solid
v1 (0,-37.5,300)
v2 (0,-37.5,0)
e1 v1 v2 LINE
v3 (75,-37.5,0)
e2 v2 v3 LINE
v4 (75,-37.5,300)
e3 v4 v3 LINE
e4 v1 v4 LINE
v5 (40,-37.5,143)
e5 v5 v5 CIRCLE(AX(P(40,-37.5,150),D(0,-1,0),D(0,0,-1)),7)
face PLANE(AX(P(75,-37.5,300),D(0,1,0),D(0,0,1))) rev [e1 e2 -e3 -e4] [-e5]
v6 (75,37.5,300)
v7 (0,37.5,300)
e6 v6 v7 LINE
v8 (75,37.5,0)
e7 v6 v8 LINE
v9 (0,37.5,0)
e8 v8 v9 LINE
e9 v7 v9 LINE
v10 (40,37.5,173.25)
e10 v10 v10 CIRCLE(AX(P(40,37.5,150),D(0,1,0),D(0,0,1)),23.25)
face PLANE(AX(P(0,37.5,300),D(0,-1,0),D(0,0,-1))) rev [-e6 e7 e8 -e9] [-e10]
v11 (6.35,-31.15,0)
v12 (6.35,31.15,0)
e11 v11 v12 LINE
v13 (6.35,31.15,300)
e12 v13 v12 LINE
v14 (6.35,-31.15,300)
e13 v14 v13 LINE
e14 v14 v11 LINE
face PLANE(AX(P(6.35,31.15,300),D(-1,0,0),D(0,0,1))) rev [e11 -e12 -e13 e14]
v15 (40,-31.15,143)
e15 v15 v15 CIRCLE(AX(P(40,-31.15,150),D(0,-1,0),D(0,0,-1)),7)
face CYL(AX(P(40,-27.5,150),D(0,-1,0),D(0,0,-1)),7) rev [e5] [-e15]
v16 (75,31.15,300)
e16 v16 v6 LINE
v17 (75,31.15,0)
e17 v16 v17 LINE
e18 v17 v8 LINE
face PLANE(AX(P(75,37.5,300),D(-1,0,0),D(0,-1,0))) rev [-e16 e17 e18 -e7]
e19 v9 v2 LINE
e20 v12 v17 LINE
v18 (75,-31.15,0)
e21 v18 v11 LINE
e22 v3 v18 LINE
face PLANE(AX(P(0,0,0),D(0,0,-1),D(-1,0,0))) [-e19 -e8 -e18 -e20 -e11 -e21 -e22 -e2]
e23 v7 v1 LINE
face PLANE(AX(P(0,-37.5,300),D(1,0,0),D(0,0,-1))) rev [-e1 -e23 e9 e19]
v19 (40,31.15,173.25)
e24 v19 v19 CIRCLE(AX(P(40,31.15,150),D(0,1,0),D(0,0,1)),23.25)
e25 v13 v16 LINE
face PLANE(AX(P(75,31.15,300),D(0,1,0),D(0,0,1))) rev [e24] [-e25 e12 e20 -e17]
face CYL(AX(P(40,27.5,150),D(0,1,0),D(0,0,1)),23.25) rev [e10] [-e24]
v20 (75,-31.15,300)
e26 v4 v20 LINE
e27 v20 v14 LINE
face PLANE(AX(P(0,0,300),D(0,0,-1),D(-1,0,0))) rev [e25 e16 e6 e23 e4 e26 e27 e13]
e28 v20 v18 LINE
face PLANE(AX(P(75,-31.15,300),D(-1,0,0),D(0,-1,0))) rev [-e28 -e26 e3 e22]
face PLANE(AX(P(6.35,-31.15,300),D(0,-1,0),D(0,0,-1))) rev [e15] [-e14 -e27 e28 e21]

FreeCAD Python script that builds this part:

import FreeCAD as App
import Part
import Sketcher
from FreeCAD import Vector
Q = App.Units.Quantity


def add_polygon(sketch, points):
    """Adds a closed chain of lines whose ends are joined by coincident constraints."""
    first, n = sketch.GeometryCount, len(points)
    for a, b in zip(points, points[1:] + points[:1]):
        sketch.addGeometry(Part.LineSegment(App.Vector(*a, 0), App.Vector(*b, 0)), False)
    for i in range(n):
        sketch.addConstraint(Sketcher.Constraint("Coincident", first + i, 2, first + (i + 1) % n, 1))

doc = App.newDocument("Part")
params = doc.addObject("Spreadsheet::Sheet", "Params")
for row, (alias, value) in enumerate([
    ("sketch1_width", "75 mm"),
    ("sketch1_height", "62.3 mm"),
    ("sketch1_width2", "68.65 mm"),
    ("pad1_length", "300 mm"),
    ("sketch2_diameter", "46.5 mm"),
    ("pocket1_length", "10 mm"),
    ("sketch3_diameter", "14 mm"),
    ("pocket2_length", "10 mm"),
], start=1):
    params.set(f"A{row}", alias)
    params.set(f"B{row}", "=" + value)
    params.setAlias(f"B{row}", alias)

body = doc.addObject("PartDesign::Body", "Body")

# Sketch on XY plane
sketch1 = body.newObject("Sketcher::SketchObject", "Sketch")
sketch1.AttachmentSupport = (doc.getObject("XY_Plane"), [""])
sketch1.MapMode = "FlatFace"
add_polygon(sketch1, [(0, 38), (0, -38), (75, -38), (75, -31), (6, -31), (6, 31), (75, 31), (75, 38)])  # lines 0-7
sketch1.addConstraint([
    Sketcher.Constraint("Vertical", 0),
    Sketcher.Constraint("Horizontal", 1),
    Sketcher.Constraint("Vertical", 2),
    Sketcher.Constraint("Horizontal", 3),
    Sketcher.Constraint("Vertical", 4),
    Sketcher.Constraint("Horizontal", 5),
    Sketcher.Constraint("Vertical", 6),
    Sketcher.Constraint("Horizontal", 7),
    Sketcher.Constraint("Symmetric", 0, 2, 7, 2, -1, 1),
    Sketcher.Constraint("Symmetric", 2, 2, 5, 2, -1),
    Sketcher.Constraint("Equal", 7, 0),
    Sketcher.Constraint("DistanceX", 1, 1, 1, 2, Q("75 mm")),
    Sketcher.Constraint("DistanceY", 4, 1, 4, 2, Q("62.3 mm")),
    Sketcher.Constraint("DistanceX", 3, 2, 3, 1, Q("68.65 mm")),
])
sketch1.setExpression("Constraints[19]", "Params.sketch1_width")
sketch1.setExpression("Constraints[20]", "Params.sketch1_height")
sketch1.setExpression("Constraints[21]", "Params.sketch1_width2")
pad1 = body.newObject("PartDesign::Pad", "Pad")
pad1.Profile = sketch1
pad1.setExpression("Length", "Params.pad1_length")

# Sketch on XZ plane
sketch2 = body.newObject("Sketcher::SketchObject", "Sketch001")
sketch2.AttachmentSupport = (doc.getObject("XZ_Plane"), [""])
sketch2.MapMode = "FlatFace"
sketch2.AttachmentOffset = App.Placement(Vector(0, 0, -37.5), App.Rotation())
sketch2.addGeometry(Part.Circle(Vector(40, 150, 0), Vector(0, 0, 1), 23), False)
sketch2.addConstraint([
    Sketcher.Constraint("Diameter", 0, Q("46.5 mm")),
    Sketcher.Constraint("DistanceX", -1, 1, 0, 3, Q("40 mm")),
    Sketcher.Constraint("DistanceY", -1, 1, 0, 3, Q("150 mm")),
])
sketch2.setExpression("Constraints[0]", "Params.sketch2_diameter")
pocket1 = body.newObject("PartDesign::Pocket", "Pocket")
pocket1.Profile = sketch2
pocket1.setExpression("Length", "Params.pocket1_length")
pocket1.Reversed = True

# Sketch on XZ plane
sketch3 = body.newObject("Sketcher::SketchObject", "Sketch002")
sketch3.AttachmentSupport = (doc.getObject("XZ_Plane"), [""])
sketch3.MapMode = "FlatFace"
sketch3.AttachmentOffset = App.Placement(Vector(0, 0, 37.5), App.Rotation())
sketch3.addGeometry(Part.Circle(Vector(40, 150, 0), Vector(0, 0, 1), 7), False)
sketch3.addConstraint([
    Sketcher.Constraint("Diameter", 0, Q("14 mm")),
    Sketcher.Constraint("DistanceX", -1, 1, 0, 3, Q("40 mm")),
    Sketcher.Constraint("DistanceY", -1, 1, 0, 3, Q("150 mm")),
])
sketch3.setExpression("Constraints[0]", "Params.sketch3_diameter")
pocket2 = body.newObject("PartDesign::Pocket", "Pocket001")
pocket2.Profile = sketch3
pocket2.setExpression("Length", "Params.pocket2_length")

doc.recompute()
